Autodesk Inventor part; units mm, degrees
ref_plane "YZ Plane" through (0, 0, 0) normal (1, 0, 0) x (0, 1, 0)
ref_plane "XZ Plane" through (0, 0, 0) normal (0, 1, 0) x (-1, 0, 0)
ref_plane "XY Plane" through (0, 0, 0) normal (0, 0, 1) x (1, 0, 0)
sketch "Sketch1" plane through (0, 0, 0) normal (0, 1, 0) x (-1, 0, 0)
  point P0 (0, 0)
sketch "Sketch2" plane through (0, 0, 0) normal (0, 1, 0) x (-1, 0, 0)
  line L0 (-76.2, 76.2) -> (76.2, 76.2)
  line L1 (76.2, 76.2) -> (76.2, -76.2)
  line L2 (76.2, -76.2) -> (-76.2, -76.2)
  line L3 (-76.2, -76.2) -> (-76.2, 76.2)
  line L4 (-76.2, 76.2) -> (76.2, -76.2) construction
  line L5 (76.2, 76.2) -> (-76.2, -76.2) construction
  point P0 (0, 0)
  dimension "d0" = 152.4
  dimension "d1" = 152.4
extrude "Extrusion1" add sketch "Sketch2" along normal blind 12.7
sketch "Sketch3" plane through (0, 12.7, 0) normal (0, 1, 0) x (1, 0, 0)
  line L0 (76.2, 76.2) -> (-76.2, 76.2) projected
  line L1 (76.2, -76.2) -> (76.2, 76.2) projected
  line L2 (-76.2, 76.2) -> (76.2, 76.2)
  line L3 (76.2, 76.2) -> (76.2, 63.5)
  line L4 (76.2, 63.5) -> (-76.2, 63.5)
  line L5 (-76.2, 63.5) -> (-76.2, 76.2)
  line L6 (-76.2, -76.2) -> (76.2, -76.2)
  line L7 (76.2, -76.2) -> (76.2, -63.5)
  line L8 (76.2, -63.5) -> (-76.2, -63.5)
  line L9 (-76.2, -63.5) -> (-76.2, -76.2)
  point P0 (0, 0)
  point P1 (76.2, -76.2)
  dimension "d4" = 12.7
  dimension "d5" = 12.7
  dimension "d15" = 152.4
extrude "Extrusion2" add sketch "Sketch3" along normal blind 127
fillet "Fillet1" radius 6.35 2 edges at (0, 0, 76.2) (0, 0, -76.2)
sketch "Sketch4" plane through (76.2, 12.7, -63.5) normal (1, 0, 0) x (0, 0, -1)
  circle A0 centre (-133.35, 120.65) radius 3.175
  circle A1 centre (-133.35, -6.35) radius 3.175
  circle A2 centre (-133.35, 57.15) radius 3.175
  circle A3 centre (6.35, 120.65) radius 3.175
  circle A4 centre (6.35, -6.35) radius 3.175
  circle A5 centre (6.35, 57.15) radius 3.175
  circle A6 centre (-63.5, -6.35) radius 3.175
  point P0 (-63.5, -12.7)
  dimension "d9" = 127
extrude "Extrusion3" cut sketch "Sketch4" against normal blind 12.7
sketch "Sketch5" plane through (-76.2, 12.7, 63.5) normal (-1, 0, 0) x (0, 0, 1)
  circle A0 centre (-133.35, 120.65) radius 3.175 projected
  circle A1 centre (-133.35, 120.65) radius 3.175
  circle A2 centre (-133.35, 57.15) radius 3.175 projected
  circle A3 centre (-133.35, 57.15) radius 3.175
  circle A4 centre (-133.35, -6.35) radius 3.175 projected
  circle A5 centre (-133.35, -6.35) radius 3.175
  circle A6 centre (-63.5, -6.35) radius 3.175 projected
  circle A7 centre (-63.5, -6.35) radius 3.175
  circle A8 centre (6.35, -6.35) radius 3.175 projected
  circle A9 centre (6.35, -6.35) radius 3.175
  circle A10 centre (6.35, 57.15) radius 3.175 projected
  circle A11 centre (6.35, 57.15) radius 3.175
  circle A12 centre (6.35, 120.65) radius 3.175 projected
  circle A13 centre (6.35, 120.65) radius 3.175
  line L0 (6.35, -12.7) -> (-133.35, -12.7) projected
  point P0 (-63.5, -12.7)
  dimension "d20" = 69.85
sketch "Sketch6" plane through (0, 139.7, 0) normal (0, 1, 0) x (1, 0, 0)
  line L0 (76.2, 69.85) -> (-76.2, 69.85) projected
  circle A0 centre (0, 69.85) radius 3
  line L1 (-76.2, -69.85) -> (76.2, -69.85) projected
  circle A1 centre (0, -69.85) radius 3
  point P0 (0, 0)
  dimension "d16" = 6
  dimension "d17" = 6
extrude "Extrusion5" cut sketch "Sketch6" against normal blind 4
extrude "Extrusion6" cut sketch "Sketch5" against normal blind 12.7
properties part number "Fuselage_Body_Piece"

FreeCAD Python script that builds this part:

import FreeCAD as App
import Part
import Sketcher

V = App.Vector
Q = App.Units.Quantity


def edges_at(feature, points):
    """Names of the edges that pass closest to the given points."""
    edges = feature.Shape.Edges
    near = lambda p: min(range(len(edges)), key=lambda i: edges[i].distToShape(Part.Vertex(*p))[0])
    return sorted({f"Edge{near(p) + 1}" for p in points})

doc = App.newDocument("Part")
body = doc.addObject("PartDesign::Body", "Body")

# Sketch on XZ plane
sketch1 = body.newObject("Sketcher::SketchObject", "Sketch")
sketch1.AttachmentSupport = (doc.getObject("XZ_Plane"), [""])
sketch1.MapMode = "FlatFace"
sketch1.addGeometry(Part.LineSegment(V(-76.2, 76.2, 0), V(76.2, 76.2, 0)), False)
sketch1.addGeometry(Part.LineSegment(V(76.2, 76.2, 0), V(76.2, -76.2, 0)), False)
sketch1.addGeometry(Part.LineSegment(V(76.2, -76.2, 0), V(-76.2, -76.2, 0)), False)
sketch1.addGeometry(Part.LineSegment(V(-76.2, -76.2, 0), V(-76.2, 76.2, 0)), False)
sketch1.addConstraint(Sketcher.Constraint("Coincident", 0, 2, 1, 1))
sketch1.addConstraint(Sketcher.Constraint("Coincident", 1, 2, 2, 1))
sketch1.addConstraint(Sketcher.Constraint("Coincident", 2, 2, 3, 1))
sketch1.addConstraint(Sketcher.Constraint("Coincident", 3, 2, 0, 1))
sketch1.addConstraint(Sketcher.Constraint("Horizontal", 0))
sketch1.addConstraint(Sketcher.Constraint("Vertical", 1))
sketch1.addConstraint(Sketcher.Constraint("Horizontal", 2))
sketch1.addConstraint(Sketcher.Constraint("Vertical", 3))
sketch1.addConstraint(Sketcher.Constraint("Symmetric", 0, 2, 2, 2, -1, 1))
sketch1.addConstraint(Sketcher.Constraint("Equal", 2, 1))
sketch1.addConstraint(Sketcher.Constraint("DistanceX", 0, 1, 0, 2, Q("6 in")))
pad1 = body.newObject("PartDesign::Pad", "Pad")
pad1.Profile = sketch1
pad1.Length = Q("0.5 in")
pad1.Reversed = True

# Sketch on XZ plane
sketch2 = body.newObject("Sketcher::SketchObject", "Sketch001")
sketch2.AttachmentSupport = (doc.getObject("XZ_Plane"), [""])
sketch2.MapMode = "FlatFace"
sketch2.AttachmentOffset = App.Placement(V(0, 0, -0.5 * 25.4), App.Rotation())
sketch2.addGeometry(Part.LineSegment(V(76.2, -63.5, 0), V(76.2, -76.2, 0)), False)
sketch2.addGeometry(Part.LineSegment(V(76.2, -76.2, 0), V(-76.2, -76.2, 0)), False)
sketch2.addGeometry(Part.LineSegment(V(-76.2, -76.2, 0), V(-76.2, -63.5, 0)), False)
sketch2.addGeometry(Part.LineSegment(V(-76.2, -63.5, 0), V(76.2, -63.5, 0)), False)
sketch2.addGeometry(Part.LineSegment(V(76.2, 76.2, 0), V(76.2, 63.5, 0)), False)
sketch2.addGeometry(Part.LineSegment(V(76.2, 63.5, 0), V(-76.2, 63.5, 0)), False)
sketch2.addGeometry(Part.LineSegment(V(-76.2, 63.5, 0), V(-76.2, 76.2, 0)), False)
sketch2.addGeometry(Part.LineSegment(V(-76.2, 76.2, 0), V(76.2, 76.2, 0)), False)
sketch2.addConstraint(Sketcher.Constraint("Coincident", 0, 2, 1, 1))
sketch2.addConstraint(Sketcher.Constraint("Coincident", 1, 2, 2, 1))
sketch2.addConstraint(Sketcher.Constraint("Coincident", 2, 2, 3, 1))
sketch2.addConstraint(Sketcher.Constraint("Coincident", 3, 2, 0, 1))
sketch2.addConstraint(Sketcher.Constraint("Coincident", 4, 2, 5, 1))
sketch2.addConstraint(Sketcher.Constraint("Coincident", 5, 2, 6, 1))
sketch2.addConstraint(Sketcher.Constraint("Coincident", 6, 2, 7, 1))
sketch2.addConstraint(Sketcher.Constraint("Coincident", 7, 2, 4, 1))
sketch2.addConstraint(Sketcher.Constraint("Vertical", 0))
sketch2.addConstraint(Sketcher.Constraint("Horizontal", 1))
sketch2.addConstraint(Sketcher.Constraint("Vertical", 2))
sketch2.addConstraint(Sketcher.Constraint("Horizontal", 3))
sketch2.addConstraint(Sketcher.Constraint("Vertical", 4))
sketch2.addConstraint(Sketcher.Constraint("Horizontal", 5))
sketch2.addConstraint(Sketcher.Constraint("Vertical", 6))
sketch2.addConstraint(Sketcher.Constraint("Horizontal", 7))
sketch2.addConstraint(Sketcher.Constraint("Symmetric", 2, 2, 4, 2, -1, 1))
sketch2.addConstraint(Sketcher.Constraint("Symmetric", 0, 2, 6, 2, -1, 1))
sketch2.addConstraint(Sketcher.Constraint("Vertical", 3, 2, 4, 2))
sketch2.addConstraint(Sketcher.Constraint("DistanceX", 1, 2, 1, 1, Q("6 in")))
sketch2.addConstraint(Sketcher.Constraint("DistanceY", 0, 2, 0, 1, Q("0.5 in")))
sketch2.addConstraint(Sketcher.Constraint("DistanceY", 1, 2, 6, 2, Q("6 in")))
pad2 = body.newObject("PartDesign::Pad", "Pad001")
pad2.Profile = sketch2
pad2.Length = Q("5 in")
pad2.Reversed = True
doc.recompute()

fillet = body.newObject("PartDesign::Fillet", "Fillet")
fillet.Base = (pad2, edges_at(pad2, [(0, 0, 76.2), (0, 0, -76.2)]))
fillet.Radius = Q("0.25 in")

# Sketch on YZ plane
sketch3 = body.newObject("Sketcher::SketchObject", "Sketch002")
sketch3.AttachmentSupport = (doc.getObject("YZ_Plane"), [""])
sketch3.MapMode = "FlatFace"
sketch3.AttachmentOffset = App.Placement(V(0, 0, 3 * 25.4), App.Rotation())
sketch3.addGeometry(Part.Circle(V(133.35, 69.85, 0), V(0, 0, 1), 3.175), False)
sketch3.addGeometry(Part.Circle(V(6.35, 69.85, 0), V(0, 0, 1), 3.175), False)
sketch3.addGeometry(Part.Circle(V(69.85, 69.85, 0), V(0, 0, 1), 3.175), False)
sketch3.addGeometry(Part.Circle(V(133.35, -69.85, 0), V(0, 0, 1), 3.175), False)
sketch3.addGeometry(Part.Circle(V(6.35, -69.85, 0), V(0, 0, 1), 3.175), False)
sketch3.addGeometry(Part.Circle(V(69.85, -69.85, 0), V(0, 0, 1), 3.175), False)
sketch3.addGeometry(Part.Circle(V(6.35, 0, 0), V(0, 0, 1), 3.175), False)
sketch3.addConstraint(Sketcher.Constraint("Equal", 0, 1))
sketch3.addConstraint(Sketcher.Constraint("Equal", 1, 2))
sketch3.addConstraint(Sketcher.Constraint("Equal", 2, 3))
sketch3.addConstraint(Sketcher.Constraint("Equal", 3, 4))
sketch3.addConstraint(Sketcher.Constraint("Equal", 4, 5))
sketch3.addConstraint(Sketcher.Constraint("Equal", 5, 6))
sketch3.addConstraint(Sketcher.Constraint("Symmetric", 0, 3, 3, 3, -1))
sketch3.addConstraint(Sketcher.Constraint("Symmetric", 1, 3, 4, 3, -1))
sketch3.addConstraint(Sketcher.Constraint("Symmetric", 2, 3, 5, 3, -1))
sketch3.addConstraint(Sketcher.Constraint("PointOnObject", 6, 3, -1))
sketch3.addConstraint(Sketcher.Constraint("Horizontal", 0, 3, 1, 3))
sketch3.addConstraint(Sketcher.Constraint("Horizontal", 1, 3, 2, 3))
sketch3.addConstraint(Sketcher.Constraint("Vertical", 4, 3, 6, 3))
sketch3.addConstraint(Sketcher.Constraint("DistanceX", 1, 3, 0, 3, Q("5 in")))
sketch3.addConstraint(Sketcher.Constraint("Diameter", 0, Q("0.25 in")))
sketch3.addConstraint(Sketcher.Constraint("DistanceX", 1, 3, 2, 3, Q("2.5 in")))
sketch3.addConstraint(Sketcher.Constraint("DistanceY", 3, 3, 0, 3, Q("5.5 in")))
sketch3.addConstraint(Sketcher.Constraint("DistanceX", -1, 1, 0, 3, Q("5.25 in")))
pocket1 = body.newObject("PartDesign::Pocket", "Pocket")
pocket1.Profile = sketch3
pocket1.Length = Q("0.5 in")

# Sketch on XZ plane
sketch4 = body.newObject("Sketcher::SketchObject", "Sketch003")
sketch4.AttachmentSupport = (doc.getObject("XZ_Plane"), [""])
sketch4.MapMode = "FlatFace"
sketch4.AttachmentOffset = App.Placement(V(0, 0, -5.5 * 25.4), App.Rotation())
sketch4.addGeometry(Part.Circle(V(0, -69.85, 0), V(0, 0, 1), 3), False)
sketch4.addGeometry(Part.Circle(V(0, 69.85, 0), V(0, 0, 1), 3), False)
sketch4.addConstraint(Sketcher.Constraint("Equal", 0, 1))
sketch4.addConstraint(Sketcher.Constraint("Symmetric", 0, 3, 1, 3, -1, 1))
sketch4.addConstraint(Sketcher.Constraint("PointOnObject", 0, 3, -2))
sketch4.addConstraint(Sketcher.Constraint("Diameter", 0, Q("6 mm")))
sketch4.addConstraint(Sketcher.Constraint("DistanceY", 0, 3, 1, 3, Q("5.5 in")))
pocket2 = body.newObject("PartDesign::Pocket", "Pocket001")
pocket2.Profile = sketch4
pocket2.Length = 4
pocket2.Reversed = True

# Sketch on YZ plane
sketch5 = body.newObject("Sketcher::SketchObject", "Sketch004")
sketch5.AttachmentSupport = (doc.getObject("YZ_Plane"), [""])
sketch5.MapMode = "FlatFace"
sketch5.AttachmentOffset = App.Placement(V(0, 0, -3 * 25.4), App.Rotation())
sketch5.addGeometry(Part.Circle(V(133.35, -69.85, 0), V(0, 0, 1), 3.175), False)
sketch5.addGeometry(Part.Circle(V(69.85, -69.85, 0), V(0, 0, 1), 3.175), False)
sketch5.addGeometry(Part.Circle(V(6.35, -69.85, 0), V(0, 0, 1), 3.175), False)
sketch5.addGeometry(Part.Circle(V(6.35, 0, 0), V(0, 0, 1), 3.175), False)
sketch5.addGeometry(Part.Circle(V(6.35, 69.85, 0), V(0, 0, 1), 3.175), False)
sketch5.addGeometry(Part.Circle(V(69.85, 69.85, 0), V(0, 0, 1), 3.175), False)
sketch5.addGeometry(Part.Circle(V(133.35, 69.85, 0), V(0, 0, 1), 3.175), False)
sketch5.addConstraint(Sketcher.Constraint("Equal", 0, 1))
sketch5.addConstraint(Sketcher.Constraint("Equal", 1, 2))
sketch5.addConstraint(Sketcher.Constraint("Equal", 2, 3))
sketch5.addConstraint(Sketcher.Constraint("Equal", 3, 4))
sketch5.addConstraint(Sketcher.Constraint("Equal", 4, 5))
sketch5.addConstraint(Sketcher.Constraint("Equal", 5, 6))
sketch5.addConstraint(Sketcher.Constraint("Symmetric", 2, 3, 4, 3, -1))
sketch5.addConstraint(Sketcher.Constraint("Symmetric", 1, 3, 5, 3, -1))
sketch5.addConstraint(Sketcher.Constraint("Symmetric", 0, 3, 6, 3, -1))
sketch5.addConstraint(Sketcher.Constraint("PointOnObject", 3, 3, -1))
sketch5.addConstraint(Sketcher.Constraint("Horizontal", 0, 3, 1, 3))
sketch5.addConstraint(Sketcher.Constraint("Horizontal", 1, 3, 2, 3))
sketch5.addConstraint(Sketcher.Constraint("Vertical", 2, 3, 3, 3))
sketch5.addConstraint(Sketcher.Constraint("Diameter", 0, Q("0.25 in")))
sketch5.addConstraint(Sketcher.Constraint("DistanceY", 0, 3, -1, 1, Q("2.75 in")))
sketch5.addConstraint(Sketcher.Constraint("DistanceX", -1, 1, 1, 3, Q("2.75 in")))
sketch5.addConstraint(Sketcher.Constraint("DistanceX", 2, 3, 0, 3, Q("5 in")))
sketch5.addConstraint(Sketcher.Constraint("DistanceX", 1, 3, 0, 3, Q("2.5 in")))
pocket3 = body.newObject("PartDesign::Pocket", "Pocket002")
pocket3.Profile = sketch5
pocket3.Length = Q("0.5 in")
pocket3.Reversed = True

doc.recompute()
